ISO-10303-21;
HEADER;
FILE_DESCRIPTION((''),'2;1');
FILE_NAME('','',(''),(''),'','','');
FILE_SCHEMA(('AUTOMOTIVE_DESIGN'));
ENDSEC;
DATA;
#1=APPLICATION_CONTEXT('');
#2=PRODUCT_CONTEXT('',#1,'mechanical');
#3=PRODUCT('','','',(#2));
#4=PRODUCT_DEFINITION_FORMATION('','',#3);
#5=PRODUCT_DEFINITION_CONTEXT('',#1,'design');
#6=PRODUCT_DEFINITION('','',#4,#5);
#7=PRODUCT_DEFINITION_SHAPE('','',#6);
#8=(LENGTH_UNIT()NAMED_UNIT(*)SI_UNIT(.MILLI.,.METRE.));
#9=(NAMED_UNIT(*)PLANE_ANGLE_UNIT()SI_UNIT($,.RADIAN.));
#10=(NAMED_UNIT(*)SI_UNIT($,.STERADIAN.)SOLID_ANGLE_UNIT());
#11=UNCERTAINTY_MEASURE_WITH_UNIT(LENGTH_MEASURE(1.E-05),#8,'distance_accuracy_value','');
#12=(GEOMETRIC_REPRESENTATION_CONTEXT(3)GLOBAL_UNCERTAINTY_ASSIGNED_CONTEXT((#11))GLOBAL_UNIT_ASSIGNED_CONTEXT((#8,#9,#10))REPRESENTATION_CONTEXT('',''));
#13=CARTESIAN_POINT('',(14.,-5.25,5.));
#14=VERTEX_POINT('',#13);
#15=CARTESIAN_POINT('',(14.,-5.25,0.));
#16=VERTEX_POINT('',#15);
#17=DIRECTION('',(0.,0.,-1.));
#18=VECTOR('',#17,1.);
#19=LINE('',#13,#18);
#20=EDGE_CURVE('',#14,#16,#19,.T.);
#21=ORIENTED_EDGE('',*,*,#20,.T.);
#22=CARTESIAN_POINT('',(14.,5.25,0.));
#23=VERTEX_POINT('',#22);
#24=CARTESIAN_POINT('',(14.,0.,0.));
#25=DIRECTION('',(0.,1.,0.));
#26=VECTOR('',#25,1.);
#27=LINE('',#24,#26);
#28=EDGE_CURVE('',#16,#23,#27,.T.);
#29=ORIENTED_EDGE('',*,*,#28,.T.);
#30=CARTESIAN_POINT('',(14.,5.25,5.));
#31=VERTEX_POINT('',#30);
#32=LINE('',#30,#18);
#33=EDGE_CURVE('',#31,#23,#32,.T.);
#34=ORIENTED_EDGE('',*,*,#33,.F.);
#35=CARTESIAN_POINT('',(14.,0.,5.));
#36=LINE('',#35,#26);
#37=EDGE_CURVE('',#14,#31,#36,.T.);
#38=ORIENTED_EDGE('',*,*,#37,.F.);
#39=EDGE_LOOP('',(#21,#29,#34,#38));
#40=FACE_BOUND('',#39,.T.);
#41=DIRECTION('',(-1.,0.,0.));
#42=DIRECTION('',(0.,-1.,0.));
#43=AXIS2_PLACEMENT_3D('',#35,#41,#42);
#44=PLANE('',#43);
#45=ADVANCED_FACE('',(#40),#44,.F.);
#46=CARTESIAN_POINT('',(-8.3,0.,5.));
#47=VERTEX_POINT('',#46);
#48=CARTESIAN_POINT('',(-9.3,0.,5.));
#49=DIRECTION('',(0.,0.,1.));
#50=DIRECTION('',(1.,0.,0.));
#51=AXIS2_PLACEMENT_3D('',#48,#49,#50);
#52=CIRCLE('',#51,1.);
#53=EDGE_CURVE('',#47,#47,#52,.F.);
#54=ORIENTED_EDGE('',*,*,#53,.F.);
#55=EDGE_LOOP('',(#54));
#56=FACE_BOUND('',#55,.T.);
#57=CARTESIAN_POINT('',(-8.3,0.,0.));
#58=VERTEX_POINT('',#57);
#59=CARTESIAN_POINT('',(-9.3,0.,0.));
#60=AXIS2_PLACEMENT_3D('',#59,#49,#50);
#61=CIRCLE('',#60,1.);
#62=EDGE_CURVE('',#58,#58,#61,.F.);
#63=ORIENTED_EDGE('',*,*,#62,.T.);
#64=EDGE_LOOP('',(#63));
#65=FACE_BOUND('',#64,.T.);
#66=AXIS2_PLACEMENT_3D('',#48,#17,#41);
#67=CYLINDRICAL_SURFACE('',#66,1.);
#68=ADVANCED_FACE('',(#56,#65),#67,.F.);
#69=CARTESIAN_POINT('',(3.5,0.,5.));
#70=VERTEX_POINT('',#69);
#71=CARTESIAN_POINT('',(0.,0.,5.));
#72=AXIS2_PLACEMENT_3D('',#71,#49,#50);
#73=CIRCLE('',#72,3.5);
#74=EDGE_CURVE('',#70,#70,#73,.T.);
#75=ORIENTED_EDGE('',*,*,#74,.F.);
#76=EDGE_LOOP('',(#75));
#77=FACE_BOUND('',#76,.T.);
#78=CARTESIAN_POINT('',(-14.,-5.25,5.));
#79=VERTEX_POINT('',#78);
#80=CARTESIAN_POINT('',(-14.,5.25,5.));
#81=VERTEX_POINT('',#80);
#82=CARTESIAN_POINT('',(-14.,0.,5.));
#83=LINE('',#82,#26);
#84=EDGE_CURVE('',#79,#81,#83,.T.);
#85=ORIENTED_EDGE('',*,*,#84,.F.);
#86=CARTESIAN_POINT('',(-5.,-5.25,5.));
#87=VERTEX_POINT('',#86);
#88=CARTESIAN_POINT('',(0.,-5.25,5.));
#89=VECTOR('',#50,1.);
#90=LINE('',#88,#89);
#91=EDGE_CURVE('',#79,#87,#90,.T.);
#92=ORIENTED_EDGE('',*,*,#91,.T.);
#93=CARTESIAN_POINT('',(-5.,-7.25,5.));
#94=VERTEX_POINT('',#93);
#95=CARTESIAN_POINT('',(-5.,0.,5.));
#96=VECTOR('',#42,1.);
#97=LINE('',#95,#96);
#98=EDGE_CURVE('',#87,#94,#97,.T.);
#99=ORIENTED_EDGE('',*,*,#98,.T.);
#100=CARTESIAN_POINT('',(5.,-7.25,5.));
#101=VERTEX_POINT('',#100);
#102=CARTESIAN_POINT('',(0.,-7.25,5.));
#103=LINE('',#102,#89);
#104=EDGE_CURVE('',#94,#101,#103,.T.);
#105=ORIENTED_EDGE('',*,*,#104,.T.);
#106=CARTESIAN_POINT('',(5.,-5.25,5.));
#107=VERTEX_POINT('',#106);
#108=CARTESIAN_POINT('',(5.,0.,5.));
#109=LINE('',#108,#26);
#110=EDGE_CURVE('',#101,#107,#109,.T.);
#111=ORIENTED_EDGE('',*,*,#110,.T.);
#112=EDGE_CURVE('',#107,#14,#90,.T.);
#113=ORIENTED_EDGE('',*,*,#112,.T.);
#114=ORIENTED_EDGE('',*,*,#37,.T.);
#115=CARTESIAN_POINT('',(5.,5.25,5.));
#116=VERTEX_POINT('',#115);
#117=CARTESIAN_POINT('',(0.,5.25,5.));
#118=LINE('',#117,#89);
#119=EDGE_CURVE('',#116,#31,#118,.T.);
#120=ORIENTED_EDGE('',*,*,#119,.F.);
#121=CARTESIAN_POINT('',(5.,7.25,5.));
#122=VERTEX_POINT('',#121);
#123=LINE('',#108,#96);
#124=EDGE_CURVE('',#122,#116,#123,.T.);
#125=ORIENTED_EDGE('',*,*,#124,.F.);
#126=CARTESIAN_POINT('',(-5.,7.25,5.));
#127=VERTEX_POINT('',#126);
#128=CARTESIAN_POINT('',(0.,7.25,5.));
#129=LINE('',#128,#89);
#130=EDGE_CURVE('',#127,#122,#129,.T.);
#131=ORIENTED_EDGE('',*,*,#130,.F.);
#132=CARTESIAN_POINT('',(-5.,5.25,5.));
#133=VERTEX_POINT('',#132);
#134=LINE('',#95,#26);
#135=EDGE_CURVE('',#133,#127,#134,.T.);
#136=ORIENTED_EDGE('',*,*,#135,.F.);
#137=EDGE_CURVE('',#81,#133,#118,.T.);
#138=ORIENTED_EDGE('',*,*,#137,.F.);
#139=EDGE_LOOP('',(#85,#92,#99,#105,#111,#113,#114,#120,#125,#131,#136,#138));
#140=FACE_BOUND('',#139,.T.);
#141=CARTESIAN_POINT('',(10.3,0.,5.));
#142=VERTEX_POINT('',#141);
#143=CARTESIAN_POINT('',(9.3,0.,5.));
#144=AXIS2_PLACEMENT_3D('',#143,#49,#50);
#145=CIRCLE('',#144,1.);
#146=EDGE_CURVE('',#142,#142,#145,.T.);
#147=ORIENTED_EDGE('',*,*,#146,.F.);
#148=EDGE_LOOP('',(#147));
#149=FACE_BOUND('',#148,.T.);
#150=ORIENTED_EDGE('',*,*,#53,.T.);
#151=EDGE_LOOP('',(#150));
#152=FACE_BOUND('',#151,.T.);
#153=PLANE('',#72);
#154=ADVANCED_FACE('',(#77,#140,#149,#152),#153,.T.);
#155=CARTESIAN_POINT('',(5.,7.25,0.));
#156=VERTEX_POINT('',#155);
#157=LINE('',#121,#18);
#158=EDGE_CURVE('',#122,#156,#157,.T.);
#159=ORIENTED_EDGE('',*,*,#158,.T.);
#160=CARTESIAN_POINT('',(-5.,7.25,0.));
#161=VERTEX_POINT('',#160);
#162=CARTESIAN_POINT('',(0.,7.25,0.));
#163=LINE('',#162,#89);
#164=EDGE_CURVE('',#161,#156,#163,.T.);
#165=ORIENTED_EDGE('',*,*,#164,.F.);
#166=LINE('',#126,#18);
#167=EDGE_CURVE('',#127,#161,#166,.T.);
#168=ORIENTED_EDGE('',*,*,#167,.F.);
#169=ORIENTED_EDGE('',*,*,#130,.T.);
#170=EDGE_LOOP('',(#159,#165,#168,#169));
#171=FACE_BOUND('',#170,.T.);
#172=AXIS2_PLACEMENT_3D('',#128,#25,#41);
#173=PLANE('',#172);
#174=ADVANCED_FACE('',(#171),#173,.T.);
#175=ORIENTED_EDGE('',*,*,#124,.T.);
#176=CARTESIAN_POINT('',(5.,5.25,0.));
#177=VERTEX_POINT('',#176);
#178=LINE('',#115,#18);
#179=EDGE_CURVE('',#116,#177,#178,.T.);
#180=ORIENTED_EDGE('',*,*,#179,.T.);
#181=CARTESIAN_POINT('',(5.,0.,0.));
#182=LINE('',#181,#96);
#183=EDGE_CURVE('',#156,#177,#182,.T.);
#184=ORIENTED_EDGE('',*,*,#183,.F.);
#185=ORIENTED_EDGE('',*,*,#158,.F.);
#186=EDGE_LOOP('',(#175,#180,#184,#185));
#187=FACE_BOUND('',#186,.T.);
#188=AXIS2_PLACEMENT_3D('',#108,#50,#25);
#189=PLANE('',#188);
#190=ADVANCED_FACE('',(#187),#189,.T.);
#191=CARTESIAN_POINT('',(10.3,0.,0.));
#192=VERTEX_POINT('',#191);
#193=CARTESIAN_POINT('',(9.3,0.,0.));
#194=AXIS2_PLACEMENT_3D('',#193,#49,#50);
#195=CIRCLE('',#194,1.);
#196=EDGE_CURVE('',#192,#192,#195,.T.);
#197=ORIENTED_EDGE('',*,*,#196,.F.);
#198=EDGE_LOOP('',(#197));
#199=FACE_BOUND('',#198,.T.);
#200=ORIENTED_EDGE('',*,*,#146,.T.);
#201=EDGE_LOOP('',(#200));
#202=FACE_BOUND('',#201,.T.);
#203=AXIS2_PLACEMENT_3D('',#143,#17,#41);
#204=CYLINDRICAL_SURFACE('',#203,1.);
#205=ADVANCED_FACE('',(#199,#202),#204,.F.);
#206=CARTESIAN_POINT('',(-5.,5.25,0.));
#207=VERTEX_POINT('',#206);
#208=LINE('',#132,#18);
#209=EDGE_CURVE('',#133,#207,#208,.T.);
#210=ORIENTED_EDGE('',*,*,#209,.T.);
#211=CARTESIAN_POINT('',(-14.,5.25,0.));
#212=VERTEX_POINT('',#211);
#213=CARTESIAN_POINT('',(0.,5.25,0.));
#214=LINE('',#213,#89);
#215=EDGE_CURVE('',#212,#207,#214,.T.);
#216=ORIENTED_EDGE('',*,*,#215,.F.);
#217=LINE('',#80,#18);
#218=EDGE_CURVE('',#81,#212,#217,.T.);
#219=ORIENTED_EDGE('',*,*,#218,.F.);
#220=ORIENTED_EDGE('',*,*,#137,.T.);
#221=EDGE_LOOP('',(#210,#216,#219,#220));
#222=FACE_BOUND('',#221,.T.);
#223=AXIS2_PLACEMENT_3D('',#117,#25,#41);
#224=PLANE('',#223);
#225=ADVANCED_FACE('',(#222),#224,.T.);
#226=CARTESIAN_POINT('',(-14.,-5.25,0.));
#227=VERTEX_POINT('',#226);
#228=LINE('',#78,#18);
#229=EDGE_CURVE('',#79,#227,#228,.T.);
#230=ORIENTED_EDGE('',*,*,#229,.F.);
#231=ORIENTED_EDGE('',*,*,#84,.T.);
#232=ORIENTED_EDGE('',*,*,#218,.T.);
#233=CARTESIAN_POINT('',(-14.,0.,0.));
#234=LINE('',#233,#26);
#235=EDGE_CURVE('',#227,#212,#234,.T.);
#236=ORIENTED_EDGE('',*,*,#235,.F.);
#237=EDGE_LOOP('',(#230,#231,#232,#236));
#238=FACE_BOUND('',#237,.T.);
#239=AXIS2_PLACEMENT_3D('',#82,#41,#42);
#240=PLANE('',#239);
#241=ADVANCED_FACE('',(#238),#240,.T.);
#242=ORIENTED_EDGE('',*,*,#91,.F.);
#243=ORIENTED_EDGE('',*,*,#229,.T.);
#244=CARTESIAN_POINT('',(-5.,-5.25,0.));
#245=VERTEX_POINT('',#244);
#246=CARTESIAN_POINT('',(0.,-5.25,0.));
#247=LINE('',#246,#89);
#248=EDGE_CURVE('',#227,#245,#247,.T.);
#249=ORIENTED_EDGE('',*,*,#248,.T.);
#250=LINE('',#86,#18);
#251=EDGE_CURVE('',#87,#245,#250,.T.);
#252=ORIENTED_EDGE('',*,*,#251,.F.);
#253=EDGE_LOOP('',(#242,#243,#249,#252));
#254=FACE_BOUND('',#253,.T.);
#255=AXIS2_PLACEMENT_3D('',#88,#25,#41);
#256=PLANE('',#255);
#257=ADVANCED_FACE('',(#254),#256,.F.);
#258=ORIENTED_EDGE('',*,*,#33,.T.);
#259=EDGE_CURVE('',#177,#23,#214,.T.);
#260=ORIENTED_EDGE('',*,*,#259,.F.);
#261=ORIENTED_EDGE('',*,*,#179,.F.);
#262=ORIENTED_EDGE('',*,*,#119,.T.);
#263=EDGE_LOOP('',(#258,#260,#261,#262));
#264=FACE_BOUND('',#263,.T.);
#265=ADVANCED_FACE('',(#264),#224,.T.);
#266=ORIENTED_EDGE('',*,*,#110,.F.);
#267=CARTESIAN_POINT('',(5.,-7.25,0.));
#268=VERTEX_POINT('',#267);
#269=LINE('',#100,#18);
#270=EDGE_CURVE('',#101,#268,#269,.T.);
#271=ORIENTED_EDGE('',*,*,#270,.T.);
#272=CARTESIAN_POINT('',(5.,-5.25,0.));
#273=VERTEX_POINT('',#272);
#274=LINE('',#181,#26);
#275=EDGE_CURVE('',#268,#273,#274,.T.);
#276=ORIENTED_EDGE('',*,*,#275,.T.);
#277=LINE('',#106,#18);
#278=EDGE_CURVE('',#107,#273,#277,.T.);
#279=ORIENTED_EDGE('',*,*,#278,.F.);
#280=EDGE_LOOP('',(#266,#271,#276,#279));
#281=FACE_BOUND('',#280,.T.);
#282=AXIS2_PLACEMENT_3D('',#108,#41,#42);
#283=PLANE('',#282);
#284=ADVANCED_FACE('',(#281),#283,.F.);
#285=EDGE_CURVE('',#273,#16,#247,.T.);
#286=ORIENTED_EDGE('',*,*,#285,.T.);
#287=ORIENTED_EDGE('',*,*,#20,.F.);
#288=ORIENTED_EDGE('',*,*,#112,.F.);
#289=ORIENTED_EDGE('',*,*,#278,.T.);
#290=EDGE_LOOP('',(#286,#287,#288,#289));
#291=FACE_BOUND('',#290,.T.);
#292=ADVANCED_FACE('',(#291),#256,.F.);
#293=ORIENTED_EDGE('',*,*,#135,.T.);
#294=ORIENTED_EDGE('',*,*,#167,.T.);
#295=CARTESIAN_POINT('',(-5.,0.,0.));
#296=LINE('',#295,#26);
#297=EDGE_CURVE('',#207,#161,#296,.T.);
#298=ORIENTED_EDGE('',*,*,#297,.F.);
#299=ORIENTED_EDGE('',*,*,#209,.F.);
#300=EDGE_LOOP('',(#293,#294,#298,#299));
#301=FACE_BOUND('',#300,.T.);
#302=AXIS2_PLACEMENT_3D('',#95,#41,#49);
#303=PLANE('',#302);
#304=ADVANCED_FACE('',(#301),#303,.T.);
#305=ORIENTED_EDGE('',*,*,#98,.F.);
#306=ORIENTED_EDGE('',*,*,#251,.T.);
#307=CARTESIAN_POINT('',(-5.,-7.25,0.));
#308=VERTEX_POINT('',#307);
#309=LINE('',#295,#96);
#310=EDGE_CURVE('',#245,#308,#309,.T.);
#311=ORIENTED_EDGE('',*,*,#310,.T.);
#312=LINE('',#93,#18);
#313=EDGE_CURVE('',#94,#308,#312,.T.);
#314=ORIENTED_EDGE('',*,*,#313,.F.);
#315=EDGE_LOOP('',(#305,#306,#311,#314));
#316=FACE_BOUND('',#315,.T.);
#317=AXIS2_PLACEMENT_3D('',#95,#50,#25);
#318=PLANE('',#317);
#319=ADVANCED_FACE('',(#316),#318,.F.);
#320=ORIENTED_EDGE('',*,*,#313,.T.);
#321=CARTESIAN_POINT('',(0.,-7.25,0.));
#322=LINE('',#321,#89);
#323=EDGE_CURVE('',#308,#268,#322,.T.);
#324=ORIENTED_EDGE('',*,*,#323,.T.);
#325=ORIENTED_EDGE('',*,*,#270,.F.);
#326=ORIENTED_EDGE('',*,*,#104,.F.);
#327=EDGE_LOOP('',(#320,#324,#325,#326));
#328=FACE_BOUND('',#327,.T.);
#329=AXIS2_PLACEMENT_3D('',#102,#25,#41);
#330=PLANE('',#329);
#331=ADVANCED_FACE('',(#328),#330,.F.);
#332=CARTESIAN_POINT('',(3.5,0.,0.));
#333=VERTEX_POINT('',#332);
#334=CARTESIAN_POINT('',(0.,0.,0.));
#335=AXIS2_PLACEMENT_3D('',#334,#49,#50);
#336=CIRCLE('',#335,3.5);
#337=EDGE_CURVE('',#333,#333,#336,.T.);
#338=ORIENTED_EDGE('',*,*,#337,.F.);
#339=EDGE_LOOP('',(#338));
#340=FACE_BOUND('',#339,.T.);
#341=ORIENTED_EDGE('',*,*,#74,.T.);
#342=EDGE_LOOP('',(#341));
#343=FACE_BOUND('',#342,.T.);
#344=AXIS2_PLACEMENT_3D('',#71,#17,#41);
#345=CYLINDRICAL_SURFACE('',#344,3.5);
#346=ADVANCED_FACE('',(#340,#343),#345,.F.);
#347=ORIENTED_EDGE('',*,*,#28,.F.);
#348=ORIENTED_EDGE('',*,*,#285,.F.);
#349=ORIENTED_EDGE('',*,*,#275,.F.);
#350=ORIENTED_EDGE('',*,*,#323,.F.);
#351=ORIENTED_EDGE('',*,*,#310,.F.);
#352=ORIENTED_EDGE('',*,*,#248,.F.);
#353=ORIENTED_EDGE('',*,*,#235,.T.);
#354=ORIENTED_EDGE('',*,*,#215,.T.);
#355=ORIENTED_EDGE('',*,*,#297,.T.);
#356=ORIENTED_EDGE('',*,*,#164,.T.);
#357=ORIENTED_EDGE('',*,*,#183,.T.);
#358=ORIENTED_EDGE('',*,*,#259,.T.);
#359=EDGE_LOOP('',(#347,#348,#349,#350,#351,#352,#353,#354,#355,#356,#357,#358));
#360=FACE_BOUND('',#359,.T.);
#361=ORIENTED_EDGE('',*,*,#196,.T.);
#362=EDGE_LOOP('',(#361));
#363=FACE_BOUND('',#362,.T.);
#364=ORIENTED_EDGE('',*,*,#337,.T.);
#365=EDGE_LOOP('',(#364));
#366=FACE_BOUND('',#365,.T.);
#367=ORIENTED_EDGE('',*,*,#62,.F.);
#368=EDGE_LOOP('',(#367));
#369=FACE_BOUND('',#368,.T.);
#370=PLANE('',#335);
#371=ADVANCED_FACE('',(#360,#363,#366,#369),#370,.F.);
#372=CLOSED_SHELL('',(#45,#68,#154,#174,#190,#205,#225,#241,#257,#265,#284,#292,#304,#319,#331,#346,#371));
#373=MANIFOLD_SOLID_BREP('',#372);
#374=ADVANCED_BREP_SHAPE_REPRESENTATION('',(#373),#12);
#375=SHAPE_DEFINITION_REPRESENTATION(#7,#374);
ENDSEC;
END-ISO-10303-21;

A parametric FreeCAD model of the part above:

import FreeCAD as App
import Part
import Sketcher
from FreeCAD import Vector


def add_polygon(sketch, points):
    """Adds a closed chain of lines whose ends are joined by coincident constraints."""
    first, n = sketch.GeometryCount, len(points)
    for a, b in zip(points, points[1:] + points[:1]):
        sketch.addGeometry(Part.LineSegment(App.Vector(*a, 0), App.Vector(*b, 0)), False)
    for i in range(n):
        sketch.addConstraint(Sketcher.Constraint("Coincident", first + i, 2, first + (i + 1) % n, 1))

doc = App.newDocument("Part")
body = doc.addObject("PartDesign::Body", "Body")

# Sketch on XY plane
sketch1 = body.newObject("Sketcher::SketchObject", "Sketch")
sketch1.AttachmentSupport = (doc.getObject("XY_Plane"), [""])
sketch1.MapMode = "FlatFace"
add_polygon(sketch1, [(-14, 5.25), (-14, -5.25), (-5, -5.25), (-5, -7.25), (5, -7.25), (5, -5.25), (14, -5.25), (14, 5.25), (5, 5.25), (5, 7.25), (-5, 7.25), (-5, 5.25)])  # lines 0-11
sketch1.addGeometry(Part.Circle(Vector(-9.3, 0, 0), Vector(0, 0, 1), 1), False)  # 12
sketch1.addGeometry(Part.Circle(Vector(0, 0, 0), Vector(0, 0, 1), 3.5), False)  # 13
sketch1.addGeometry(Part.Circle(Vector(9.3, 0, 0), Vector(0, 0, 1), 1), False)  # 14
sketch1.addConstraint([
    Sketcher.Constraint("Vertical", 0),
    Sketcher.Constraint("Horizontal", 1),
    Sketcher.Constraint("Vertical", 2),
    Sketcher.Constraint("Horizontal", 3),
    Sketcher.Constraint("Vertical", 4),
    Sketcher.Constraint("Horizontal", 5),
    Sketcher.Constraint("Vertical", 6),
    Sketcher.Constraint("Horizontal", 7),
    Sketcher.Constraint("Vertical", 8),
    Sketcher.Constraint("Horizontal", 9),
    Sketcher.Constraint("Vertical", 10),
    Sketcher.Constraint("Horizontal", 11),
    Sketcher.Constraint("Coincident", 13, 3, -1, 1),
    Sketcher.Constraint("Equal", 12, 14),
    Sketcher.Constraint("Symmetric", 12, 3, 14, 3, -1, 1),
    Sketcher.Constraint("Symmetric", 0, 2, 6, 2, -1, 1),
    Sketcher.Constraint("Symmetric", 2, 2, 8, 2, -1, 1),
    Sketcher.Constraint("Symmetric", 4, 2, 10, 2, -1, 1),
    Sketcher.Constraint("Symmetric", 1, 2, 4, 2, -2),
    Sketcher.Constraint("PointOnObject", 12, 3, -1),
    Sketcher.Constraint("Diameter", 12, 2.0),
    Sketcher.Constraint("Diameter", 13, 7.0),
    Sketcher.Constraint("DistanceX", 1, 1, 1, 2, 9.0),
    Sketcher.Constraint("DistanceX", 3, 1, 3, 2, 10.0),
    Sketcher.Constraint("DistanceY", 2, 2, 2, 1, 2.0),
    Sketcher.Constraint("DistanceY", 0, 2, 0, 1, 10.5),
    Sketcher.Constraint("DistanceX", 12, 3, -1, 1, 9.3),
])
pad1 = body.newObject("PartDesign::Pad", "Pad")
pad1.Profile = sketch1
pad1.Length = 5

doc.recompute()
